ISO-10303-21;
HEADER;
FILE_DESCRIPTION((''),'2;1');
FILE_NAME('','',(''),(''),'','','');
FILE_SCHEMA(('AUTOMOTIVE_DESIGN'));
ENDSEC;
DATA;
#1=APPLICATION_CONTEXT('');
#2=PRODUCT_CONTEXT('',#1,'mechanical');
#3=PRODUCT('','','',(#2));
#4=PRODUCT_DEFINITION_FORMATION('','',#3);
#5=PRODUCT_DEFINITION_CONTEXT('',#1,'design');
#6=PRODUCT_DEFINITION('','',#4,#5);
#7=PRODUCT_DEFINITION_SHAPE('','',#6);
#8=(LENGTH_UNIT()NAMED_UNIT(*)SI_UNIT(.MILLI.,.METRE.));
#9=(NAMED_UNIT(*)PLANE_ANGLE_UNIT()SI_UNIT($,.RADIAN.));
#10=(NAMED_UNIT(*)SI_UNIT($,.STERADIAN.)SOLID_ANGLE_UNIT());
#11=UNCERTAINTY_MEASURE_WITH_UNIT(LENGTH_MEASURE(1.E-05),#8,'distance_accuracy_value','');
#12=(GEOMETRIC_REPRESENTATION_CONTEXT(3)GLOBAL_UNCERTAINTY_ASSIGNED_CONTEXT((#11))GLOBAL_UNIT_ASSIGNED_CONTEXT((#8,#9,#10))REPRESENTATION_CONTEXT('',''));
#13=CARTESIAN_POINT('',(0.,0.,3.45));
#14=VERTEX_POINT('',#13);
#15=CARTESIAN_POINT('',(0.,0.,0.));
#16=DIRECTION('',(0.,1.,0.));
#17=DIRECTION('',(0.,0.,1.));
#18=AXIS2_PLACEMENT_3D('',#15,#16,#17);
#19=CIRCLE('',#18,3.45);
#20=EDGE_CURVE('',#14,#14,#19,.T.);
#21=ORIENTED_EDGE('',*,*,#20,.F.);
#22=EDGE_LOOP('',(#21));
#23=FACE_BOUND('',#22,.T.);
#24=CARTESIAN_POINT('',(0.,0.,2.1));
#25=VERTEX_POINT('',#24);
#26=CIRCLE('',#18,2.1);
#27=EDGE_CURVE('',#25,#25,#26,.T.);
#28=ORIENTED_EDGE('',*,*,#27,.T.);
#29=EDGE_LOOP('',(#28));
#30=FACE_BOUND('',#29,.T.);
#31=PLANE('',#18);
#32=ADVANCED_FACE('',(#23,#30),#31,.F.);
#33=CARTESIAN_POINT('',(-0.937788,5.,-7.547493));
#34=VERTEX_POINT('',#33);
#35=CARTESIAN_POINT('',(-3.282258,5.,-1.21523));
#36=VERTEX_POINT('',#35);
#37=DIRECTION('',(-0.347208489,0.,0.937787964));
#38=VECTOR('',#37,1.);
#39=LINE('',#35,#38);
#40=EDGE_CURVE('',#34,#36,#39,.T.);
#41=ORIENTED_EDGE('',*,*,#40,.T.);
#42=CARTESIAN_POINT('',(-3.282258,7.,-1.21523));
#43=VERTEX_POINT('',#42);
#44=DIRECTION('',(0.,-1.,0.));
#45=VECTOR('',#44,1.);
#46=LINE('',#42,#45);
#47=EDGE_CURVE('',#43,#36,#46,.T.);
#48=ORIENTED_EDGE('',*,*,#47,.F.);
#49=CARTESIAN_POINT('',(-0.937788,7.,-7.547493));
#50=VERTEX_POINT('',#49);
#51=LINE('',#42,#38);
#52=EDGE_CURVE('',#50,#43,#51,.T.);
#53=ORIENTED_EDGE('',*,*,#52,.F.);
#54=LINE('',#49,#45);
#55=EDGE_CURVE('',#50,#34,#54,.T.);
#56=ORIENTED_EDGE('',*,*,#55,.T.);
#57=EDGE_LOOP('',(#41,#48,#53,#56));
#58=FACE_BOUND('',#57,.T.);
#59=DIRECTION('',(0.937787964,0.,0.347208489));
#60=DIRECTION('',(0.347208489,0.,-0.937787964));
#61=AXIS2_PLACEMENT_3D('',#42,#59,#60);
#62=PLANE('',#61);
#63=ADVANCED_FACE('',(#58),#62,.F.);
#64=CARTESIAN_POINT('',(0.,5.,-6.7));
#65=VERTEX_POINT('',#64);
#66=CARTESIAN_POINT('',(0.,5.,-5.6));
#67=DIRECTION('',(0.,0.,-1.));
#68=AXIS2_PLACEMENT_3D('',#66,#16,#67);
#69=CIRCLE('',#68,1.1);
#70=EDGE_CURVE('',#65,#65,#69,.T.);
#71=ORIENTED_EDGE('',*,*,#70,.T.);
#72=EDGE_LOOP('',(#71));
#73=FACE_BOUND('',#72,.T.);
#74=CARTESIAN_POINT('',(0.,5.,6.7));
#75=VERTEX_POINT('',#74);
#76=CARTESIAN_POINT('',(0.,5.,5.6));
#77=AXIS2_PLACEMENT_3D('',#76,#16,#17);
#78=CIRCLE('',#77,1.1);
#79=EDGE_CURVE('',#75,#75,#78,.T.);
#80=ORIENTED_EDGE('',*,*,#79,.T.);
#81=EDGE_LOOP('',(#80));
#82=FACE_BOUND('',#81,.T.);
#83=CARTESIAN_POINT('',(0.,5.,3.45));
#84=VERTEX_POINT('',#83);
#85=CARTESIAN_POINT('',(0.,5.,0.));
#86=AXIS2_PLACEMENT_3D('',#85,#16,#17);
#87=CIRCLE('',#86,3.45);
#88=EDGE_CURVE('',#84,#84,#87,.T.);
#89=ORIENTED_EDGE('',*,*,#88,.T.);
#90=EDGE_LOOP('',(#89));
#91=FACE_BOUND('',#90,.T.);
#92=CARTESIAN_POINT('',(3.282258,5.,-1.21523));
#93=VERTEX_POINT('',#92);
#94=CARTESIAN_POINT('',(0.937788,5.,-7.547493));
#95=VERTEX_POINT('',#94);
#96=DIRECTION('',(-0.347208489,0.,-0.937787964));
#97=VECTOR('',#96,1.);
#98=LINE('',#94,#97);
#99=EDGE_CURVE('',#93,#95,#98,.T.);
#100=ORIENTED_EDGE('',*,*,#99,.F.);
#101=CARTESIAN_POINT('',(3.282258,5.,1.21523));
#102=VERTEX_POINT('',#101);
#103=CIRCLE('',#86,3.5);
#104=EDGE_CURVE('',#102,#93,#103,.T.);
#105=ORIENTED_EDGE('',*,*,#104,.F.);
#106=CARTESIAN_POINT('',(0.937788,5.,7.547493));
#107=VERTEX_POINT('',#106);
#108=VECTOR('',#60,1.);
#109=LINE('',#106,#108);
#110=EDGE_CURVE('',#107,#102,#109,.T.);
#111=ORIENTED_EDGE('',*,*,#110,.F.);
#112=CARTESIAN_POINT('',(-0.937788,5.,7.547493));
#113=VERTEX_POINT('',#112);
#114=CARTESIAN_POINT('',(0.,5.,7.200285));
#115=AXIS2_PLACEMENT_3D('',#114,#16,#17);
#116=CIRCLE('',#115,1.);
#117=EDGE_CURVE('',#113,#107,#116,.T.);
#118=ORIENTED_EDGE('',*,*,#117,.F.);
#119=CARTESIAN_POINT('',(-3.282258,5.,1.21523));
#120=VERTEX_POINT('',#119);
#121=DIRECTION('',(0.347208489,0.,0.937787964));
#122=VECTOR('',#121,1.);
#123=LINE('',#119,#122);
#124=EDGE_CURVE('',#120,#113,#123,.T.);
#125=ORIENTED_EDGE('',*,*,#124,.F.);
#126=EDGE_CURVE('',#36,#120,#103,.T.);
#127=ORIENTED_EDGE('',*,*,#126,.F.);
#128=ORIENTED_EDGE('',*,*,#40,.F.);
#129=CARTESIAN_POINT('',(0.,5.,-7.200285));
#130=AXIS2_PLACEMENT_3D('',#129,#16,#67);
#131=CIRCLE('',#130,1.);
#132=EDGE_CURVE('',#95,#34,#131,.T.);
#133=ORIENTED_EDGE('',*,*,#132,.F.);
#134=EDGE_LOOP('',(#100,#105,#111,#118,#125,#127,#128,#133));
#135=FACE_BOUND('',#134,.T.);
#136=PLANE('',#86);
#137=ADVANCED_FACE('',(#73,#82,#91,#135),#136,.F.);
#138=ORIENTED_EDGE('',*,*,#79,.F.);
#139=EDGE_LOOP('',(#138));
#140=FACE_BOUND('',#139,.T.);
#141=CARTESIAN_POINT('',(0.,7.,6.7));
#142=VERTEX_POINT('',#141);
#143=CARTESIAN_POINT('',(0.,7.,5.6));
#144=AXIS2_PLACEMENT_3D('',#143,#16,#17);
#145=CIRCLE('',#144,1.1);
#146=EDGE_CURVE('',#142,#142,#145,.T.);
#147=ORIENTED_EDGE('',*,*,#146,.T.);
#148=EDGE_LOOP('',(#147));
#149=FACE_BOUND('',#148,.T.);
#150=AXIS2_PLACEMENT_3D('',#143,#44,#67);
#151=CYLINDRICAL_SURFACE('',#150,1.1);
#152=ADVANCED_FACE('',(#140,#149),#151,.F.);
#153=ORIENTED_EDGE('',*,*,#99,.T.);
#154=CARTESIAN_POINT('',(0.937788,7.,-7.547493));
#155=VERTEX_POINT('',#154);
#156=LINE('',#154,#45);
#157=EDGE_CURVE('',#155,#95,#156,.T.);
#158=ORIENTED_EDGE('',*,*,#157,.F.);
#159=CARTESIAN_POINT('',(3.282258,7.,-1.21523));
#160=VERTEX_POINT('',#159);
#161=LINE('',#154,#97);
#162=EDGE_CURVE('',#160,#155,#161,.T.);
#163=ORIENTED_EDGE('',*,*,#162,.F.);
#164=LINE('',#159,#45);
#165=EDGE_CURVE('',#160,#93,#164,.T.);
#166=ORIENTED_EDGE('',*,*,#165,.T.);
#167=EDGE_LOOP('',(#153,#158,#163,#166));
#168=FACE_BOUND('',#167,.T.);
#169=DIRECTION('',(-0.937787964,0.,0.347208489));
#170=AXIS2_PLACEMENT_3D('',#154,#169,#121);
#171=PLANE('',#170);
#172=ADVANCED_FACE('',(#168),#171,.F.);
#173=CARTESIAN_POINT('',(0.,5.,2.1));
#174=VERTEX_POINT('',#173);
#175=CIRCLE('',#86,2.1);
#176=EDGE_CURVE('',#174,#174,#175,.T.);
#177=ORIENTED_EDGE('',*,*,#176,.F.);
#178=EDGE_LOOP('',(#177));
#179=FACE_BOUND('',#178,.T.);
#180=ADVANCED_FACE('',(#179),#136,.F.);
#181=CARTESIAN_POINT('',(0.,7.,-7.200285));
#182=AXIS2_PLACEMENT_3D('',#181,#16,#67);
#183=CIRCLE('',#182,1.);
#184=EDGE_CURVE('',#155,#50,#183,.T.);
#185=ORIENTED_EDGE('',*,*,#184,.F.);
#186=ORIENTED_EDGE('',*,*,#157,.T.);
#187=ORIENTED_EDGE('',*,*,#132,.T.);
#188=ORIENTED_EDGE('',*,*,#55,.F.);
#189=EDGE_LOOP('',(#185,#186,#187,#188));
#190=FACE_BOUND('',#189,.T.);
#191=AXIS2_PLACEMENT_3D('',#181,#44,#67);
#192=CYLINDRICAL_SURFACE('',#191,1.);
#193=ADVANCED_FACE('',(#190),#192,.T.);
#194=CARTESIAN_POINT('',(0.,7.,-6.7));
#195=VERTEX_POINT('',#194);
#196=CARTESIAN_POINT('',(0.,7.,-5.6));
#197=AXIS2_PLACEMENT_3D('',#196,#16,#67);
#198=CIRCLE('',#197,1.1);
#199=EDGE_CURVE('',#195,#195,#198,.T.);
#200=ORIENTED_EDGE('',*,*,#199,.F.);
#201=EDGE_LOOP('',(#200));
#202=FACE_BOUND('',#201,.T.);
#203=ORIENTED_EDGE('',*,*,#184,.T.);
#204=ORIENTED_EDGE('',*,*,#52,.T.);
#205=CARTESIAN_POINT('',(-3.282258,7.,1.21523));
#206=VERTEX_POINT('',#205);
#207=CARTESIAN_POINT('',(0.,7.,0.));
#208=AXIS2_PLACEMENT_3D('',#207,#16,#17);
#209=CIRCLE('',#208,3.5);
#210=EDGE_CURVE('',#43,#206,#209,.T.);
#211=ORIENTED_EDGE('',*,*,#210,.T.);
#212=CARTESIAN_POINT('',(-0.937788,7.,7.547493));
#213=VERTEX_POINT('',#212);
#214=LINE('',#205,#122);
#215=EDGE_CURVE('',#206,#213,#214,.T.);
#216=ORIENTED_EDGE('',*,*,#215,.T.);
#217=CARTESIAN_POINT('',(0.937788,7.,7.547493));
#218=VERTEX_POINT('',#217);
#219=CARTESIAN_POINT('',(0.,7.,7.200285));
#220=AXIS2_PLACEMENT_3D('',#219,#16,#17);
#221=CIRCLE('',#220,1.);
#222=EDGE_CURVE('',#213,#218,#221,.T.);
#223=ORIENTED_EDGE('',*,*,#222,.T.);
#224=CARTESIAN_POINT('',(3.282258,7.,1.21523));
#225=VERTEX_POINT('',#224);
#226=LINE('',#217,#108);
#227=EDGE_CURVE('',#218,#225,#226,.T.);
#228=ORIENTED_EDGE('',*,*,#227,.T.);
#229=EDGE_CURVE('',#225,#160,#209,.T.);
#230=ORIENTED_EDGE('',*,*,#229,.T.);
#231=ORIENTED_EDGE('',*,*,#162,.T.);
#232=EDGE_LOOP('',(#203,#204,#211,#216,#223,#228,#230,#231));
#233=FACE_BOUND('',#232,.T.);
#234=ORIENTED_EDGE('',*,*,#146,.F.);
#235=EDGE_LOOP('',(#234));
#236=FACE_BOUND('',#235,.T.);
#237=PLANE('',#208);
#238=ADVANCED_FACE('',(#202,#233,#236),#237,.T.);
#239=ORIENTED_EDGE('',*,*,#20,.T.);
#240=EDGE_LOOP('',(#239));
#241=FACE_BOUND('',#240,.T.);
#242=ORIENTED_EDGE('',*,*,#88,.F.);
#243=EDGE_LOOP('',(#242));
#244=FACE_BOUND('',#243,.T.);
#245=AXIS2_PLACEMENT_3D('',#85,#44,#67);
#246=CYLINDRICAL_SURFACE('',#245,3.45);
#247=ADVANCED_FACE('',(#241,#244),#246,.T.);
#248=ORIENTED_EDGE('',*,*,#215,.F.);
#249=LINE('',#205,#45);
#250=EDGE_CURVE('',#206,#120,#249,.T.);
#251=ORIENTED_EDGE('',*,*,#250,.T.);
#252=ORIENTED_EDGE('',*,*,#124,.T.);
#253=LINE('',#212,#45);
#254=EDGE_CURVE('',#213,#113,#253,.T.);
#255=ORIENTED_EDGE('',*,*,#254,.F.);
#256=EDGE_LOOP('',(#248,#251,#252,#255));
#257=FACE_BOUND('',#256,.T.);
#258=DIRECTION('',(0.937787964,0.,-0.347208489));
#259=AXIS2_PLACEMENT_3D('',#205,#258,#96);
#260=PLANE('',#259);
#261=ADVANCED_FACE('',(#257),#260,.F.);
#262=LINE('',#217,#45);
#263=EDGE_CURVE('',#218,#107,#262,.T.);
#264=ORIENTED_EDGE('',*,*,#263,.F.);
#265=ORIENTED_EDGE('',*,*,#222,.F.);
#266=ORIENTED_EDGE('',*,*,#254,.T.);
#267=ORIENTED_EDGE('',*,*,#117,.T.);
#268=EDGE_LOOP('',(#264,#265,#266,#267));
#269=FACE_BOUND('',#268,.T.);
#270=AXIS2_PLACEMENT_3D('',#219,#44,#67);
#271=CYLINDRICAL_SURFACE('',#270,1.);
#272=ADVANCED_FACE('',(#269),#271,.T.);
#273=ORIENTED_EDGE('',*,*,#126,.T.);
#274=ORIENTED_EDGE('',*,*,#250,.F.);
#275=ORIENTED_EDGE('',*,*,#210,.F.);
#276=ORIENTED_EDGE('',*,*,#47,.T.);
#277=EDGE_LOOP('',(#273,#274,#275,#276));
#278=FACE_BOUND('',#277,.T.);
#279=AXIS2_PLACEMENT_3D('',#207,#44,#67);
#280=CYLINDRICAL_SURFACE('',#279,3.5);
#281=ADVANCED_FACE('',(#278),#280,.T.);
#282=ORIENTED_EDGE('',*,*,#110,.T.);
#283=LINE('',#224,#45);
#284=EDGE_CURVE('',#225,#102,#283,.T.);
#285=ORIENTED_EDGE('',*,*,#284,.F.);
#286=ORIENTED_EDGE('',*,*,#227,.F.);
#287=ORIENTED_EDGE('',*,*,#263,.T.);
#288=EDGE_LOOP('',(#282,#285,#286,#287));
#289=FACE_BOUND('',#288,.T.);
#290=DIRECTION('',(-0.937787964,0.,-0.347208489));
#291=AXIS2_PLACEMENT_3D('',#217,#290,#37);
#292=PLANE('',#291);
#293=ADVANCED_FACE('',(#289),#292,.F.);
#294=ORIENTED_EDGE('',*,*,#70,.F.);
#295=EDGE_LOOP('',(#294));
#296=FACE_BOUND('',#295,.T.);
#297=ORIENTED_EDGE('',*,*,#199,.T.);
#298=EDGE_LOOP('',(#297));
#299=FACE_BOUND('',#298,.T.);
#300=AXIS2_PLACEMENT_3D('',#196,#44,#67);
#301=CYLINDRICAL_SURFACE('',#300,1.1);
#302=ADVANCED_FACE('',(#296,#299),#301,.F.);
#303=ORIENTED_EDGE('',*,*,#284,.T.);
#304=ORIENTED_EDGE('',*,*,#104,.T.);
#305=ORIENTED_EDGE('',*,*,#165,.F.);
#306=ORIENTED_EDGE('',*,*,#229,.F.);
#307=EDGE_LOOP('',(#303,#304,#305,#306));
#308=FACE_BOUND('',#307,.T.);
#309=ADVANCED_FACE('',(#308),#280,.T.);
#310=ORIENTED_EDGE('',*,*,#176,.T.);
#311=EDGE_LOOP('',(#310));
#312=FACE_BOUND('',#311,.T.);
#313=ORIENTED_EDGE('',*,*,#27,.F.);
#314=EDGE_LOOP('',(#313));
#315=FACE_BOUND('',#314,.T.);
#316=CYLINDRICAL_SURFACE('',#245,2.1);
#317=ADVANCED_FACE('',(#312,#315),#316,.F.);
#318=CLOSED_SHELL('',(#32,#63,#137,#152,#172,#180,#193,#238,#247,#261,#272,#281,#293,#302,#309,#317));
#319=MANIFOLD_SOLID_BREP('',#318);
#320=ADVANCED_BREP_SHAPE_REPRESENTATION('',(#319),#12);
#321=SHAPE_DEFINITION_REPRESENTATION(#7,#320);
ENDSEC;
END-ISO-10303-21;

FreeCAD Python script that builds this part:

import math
import FreeCAD as App
import Part
import Sketcher
from FreeCAD import Vector

doc = App.newDocument("Part")
body = doc.addObject("PartDesign::Body", "Body")

sketch1 = body.newObject("Sketcher::SketchObject", "Sketch")
sketch1.AttachmentSupport = (doc.getObject("XZ_Plane"), [""])
sketch1.MapMode = "FlatFace"
sketch1.addGeometry(Part.Circle(Vector(0, 0, 0), Vector(0, 0, 1), 3.45), False)
sketch1.addGeometry(Part.Circle(Vector(0, 0, 0), Vector(0, 0, 1), 2.1), False)
sketch1.addConstraint(Sketcher.Constraint("Coincident", 0, 3, -1, 1))
sketch1.addConstraint(Sketcher.Constraint("Coincident", 1, 3, -1, 1))
sketch1.addConstraint(Sketcher.Constraint("Diameter", 0, 6.9))
sketch1.addConstraint(Sketcher.Constraint("Diameter", 1, 4.2))
pad1 = body.newObject("PartDesign::Pad", "Pad")
pad1.Profile = sketch1
pad1.Length = 5
pad1.Reversed = True

sketch2 = body.newObject("Sketcher::SketchObject", "Sketch001")
sketch2.AttachmentSupport = (doc.getObject("XZ_Plane"), [""])
sketch2.MapMode = "FlatFace"
sketch2.AttachmentOffset = App.Placement(Vector(0, 0, -5), App.Rotation())
sketch2.addGeometry(Part.LineSegment(Vector(-0.937788, -7.547493, 0), Vector(-3.282258, -1.21523, 0)), False)
sketch2.addGeometry(Part.ArcOfCircle(Part.Circle(Vector(0, 0, 0), Vector(0, 0, 1), 3.5), math.radians(159.683331), math.radians(200.316669)), False)
sketch2.addGeometry(Part.LineSegment(Vector(-3.282258, 1.21523, 0), Vector(-0.937788, 7.547493, 0)), False)
sketch2.addGeometry(Part.ArcOfCircle(Part.Circle(Vector(0, 7.200285, 0), Vector(0, 0, 1), 1), math.radians(20.316669), math.radians(159.683331)), False)
sketch2.addGeometry(Part.LineSegment(Vector(0.937788, 7.547493, 0), Vector(3.282258, 1.21523, 0)), False)
sketch2.addGeometry(Part.ArcOfCircle(Part.Circle(Vector(0, 0, 0), Vector(0, 0, 1), 3.5), math.radians(-20.316669), math.radians(20.316669)), False)
sketch2.addGeometry(Part.LineSegment(Vector(3.282258, -1.21523, 0), Vector(0.937788, -7.547493, 0)), False)
sketch2.addGeometry(Part.ArcOfCircle(Part.Circle(Vector(0, -7.200285, 0), Vector(0, 0, 1), 1), math.radians(-159.683331), math.radians(-20.316669)), False)
sketch2.addGeometry(Part.Circle(Vector(0, 5.6, 0), Vector(0, 0, 1), 1.1), False)
sketch2.addGeometry(Part.Circle(Vector(0, -5.6, 0), Vector(0, 0, 1), 1.1), False)
sketch2.addConstraint(Sketcher.Constraint("Tangent", 0, 2, 1, 2))
sketch2.addConstraint(Sketcher.Constraint("Tangent", 1, 1, 2, 1))
sketch2.addConstraint(Sketcher.Constraint("Tangent", 2, 2, 3, 2))
sketch2.addConstraint(Sketcher.Constraint("Tangent", 3, 1, 4, 1))
sketch2.addConstraint(Sketcher.Constraint("Tangent", 4, 2, 5, 2))
sketch2.addConstraint(Sketcher.Constraint("Tangent", 5, 1, 6, 1))
sketch2.addConstraint(Sketcher.Constraint("Tangent", 6, 2, 7, 2))
sketch2.addConstraint(Sketcher.Constraint("Tangent", 7, 1, 0, 1))
sketch2.addConstraint(Sketcher.Constraint("Coincident", 1, 3, -1, 1))
sketch2.addConstraint(Sketcher.Constraint("Coincident", 5, 3, -1, 1))
sketch2.addConstraint(Sketcher.Constraint("Equal", 1, 5))
sketch2.addConstraint(Sketcher.Constraint("Equal", 3, 7))
sketch2.addConstraint(Sketcher.Constraint("Equal", 8, 9))
sketch2.addConstraint(Sketcher.Constraint("Symmetric", 3, 3, 7, 3, -1, 1))
sketch2.addConstraint(Sketcher.Constraint("Symmetric", 8, 3, 9, 3, -1, 1))
sketch2.addConstraint(Sketcher.Constraint("PointOnObject", 3, 3, -2))
sketch2.addConstraint(Sketcher.Constraint("PointOnObject", 8, 3, -2))
sketch2.addConstraint(Sketcher.Constraint("Radius", 3, 1.0))
sketch2.addConstraint(Sketcher.Constraint("Diameter", 8, 2.2))
sketch2.addConstraint(Sketcher.Constraint("Radius", 1, 3.5))
sketch2.addConstraint(Sketcher.Constraint("DistanceY", -1, 1, 8, 3, 5.6))
sketch2.addConstraint(Sketcher.Constraint("Distance", 0, 6.75234))
pad2 = body.newObject("PartDesign::Pad", "Pad001")
pad2.Profile = sketch2
pad2.Length = 2
pad2.Reversed = True

doc.recompute()
